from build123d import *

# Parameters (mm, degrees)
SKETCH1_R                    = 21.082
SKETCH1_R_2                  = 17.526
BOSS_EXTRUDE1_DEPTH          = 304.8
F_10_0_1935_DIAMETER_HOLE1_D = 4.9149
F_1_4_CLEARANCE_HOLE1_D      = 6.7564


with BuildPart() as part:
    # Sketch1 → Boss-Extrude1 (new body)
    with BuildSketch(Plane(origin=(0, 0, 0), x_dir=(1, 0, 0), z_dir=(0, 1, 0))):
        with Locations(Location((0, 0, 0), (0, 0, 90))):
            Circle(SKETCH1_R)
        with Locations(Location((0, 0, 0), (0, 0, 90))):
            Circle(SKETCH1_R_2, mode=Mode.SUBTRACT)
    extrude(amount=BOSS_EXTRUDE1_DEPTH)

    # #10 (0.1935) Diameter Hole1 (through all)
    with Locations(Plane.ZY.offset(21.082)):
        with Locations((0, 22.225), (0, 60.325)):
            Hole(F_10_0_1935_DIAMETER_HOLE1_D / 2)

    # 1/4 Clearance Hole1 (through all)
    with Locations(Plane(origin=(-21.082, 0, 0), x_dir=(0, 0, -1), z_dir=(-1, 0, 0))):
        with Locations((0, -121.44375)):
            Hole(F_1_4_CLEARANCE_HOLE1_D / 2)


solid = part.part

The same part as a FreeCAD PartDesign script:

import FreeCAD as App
import Part
import Sketcher
from FreeCAD import Vector
Q = App.Units.Quantity

doc = App.newDocument("Part")
body = doc.addObject("PartDesign::Body", "Body")

sketch1 = body.newObject("Sketcher::SketchObject", "Sketch")
sketch1.AttachmentSupport = (doc.getObject("XZ_Plane"), [""])
sketch1.MapMode = "FlatFace"
sketch1.addGeometry(Part.Circle(Vector(0, 0, 0), Vector(0, 0, 1), 21.082), False)
sketch1.addGeometry(Part.Circle(Vector(0, 0, 0), Vector(0, 0, 1), 17.526), False)
sketch1.addConstraint(Sketcher.Constraint("Coincident", 0, 3, -1, 1))
sketch1.addConstraint(Sketcher.Constraint("Coincident", 1, 3, -1, 1))
sketch1.addConstraint(Sketcher.Constraint("Diameter", 0, Q("1.66 in")))
sketch1.addConstraint(Sketcher.Constraint("Diameter", 1, Q("1.38 in")))
pad1 = body.newObject("PartDesign::Pad", "Pad")
pad1.Profile = sketch1
pad1.Length = Q("12 in")
pad1.Reversed = True

sketch2 = body.newObject("Sketcher::SketchObject", "Sketch001")
sketch2.AttachmentSupport = (doc.getObject("YZ_Plane"), [""])
sketch2.MapMode = "FlatFace"
sketch2.AttachmentOffset = App.Placement(Vector(0, 0, -0.83 * 25.4), App.Rotation())
sketch2.addGeometry(Part.Circle(Vector(22.225, 0, 0), Vector(0, 0, 1), 2.45745), False)
sketch2.addGeometry(Part.Circle(Vector(60.325, 0, 0), Vector(0, 0, 1), 2.45745), False)
sketch2.addConstraint(Sketcher.Constraint("Equal", 0, 1))
sketch2.addConstraint(Sketcher.Constraint("PointOnObject", 0, 3, -1))
sketch2.addConstraint(Sketcher.Constraint("PointOnObject", 1, 3, -1))
sketch2.addConstraint(Sketcher.Constraint("Diameter", 0, Q("0.1935 in")))
sketch2.addConstraint(Sketcher.Constraint("DistanceX", 0, 3, 1, 3, Q("1.5 in")))
sketch2.addConstraint(Sketcher.Constraint("DistanceX", -1, 1, 0, 3, Q("0.875 in")))
doc.recompute()
hole = body.newObject("PartDesign::Hole", "Hole")
hole.Profile = sketch2
hole.ThreadType = "None"
hole.Diameter = Q("0.1935 in")
hole.DepthType = "ThroughAll"
hole.Reversed = True

sketch3 = body.newObject("Sketcher::SketchObject", "Sketch002")
sketch3.AttachmentSupport = (doc.getObject("YZ_Plane"), [""])
sketch3.MapMode = "FlatFace"
sketch3.AttachmentOffset = App.Placement(Vector(0, 0, -0.83 * 25.4), App.Rotation())
sketch3.addGeometry(Part.Circle(Vector(121.44375, 0, 0), Vector(0, 0, 1), 3.3782), False)
sketch3.addConstraint(Sketcher.Constraint("PointOnObject", 0, 3, -1))
sketch3.addConstraint(Sketcher.Constraint("Diameter", 0, Q("0.266 in")))
sketch3.addConstraint(Sketcher.Constraint("DistanceX", -1, 1, 0, 3, Q("4.78125 in")))
doc.recompute()
hole2 = body.newObject("PartDesign::Hole", "Hole001")
hole2.Profile = sketch3
hole2.ThreadType = "None"
hole2.Diameter = Q("0.266 in")
hole2.DepthType = "ThroughAll"
hole2.Reversed = True

doc.recompute()
